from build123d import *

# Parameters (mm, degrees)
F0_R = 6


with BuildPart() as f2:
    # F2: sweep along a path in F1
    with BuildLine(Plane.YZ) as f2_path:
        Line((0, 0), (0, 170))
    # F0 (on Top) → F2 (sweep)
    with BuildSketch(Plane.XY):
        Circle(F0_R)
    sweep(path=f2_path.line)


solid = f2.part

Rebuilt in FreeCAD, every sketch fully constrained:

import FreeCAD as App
import Part
import Sketcher
Q = App.Units.Quantity

doc = App.newDocument("Part")
body = doc.addObject("PartDesign::Body", "Body")

# Sketch on XY plane
sketch1 = body.newObject("Sketcher::SketchObject", "Sketch")
sketch1.AttachmentSupport = (doc.getObject("XY_Plane"), [""])
sketch1.MapMode = "FlatFace"
sketch1.addGeometry(Part.Circle(App.Vector(0, 0, 0), App.Vector(0, 0, 1), 6), False)
sketch1.addConstraint(Sketcher.Constraint("Coincident", 0, 3, -1, 1))
sketch1.addConstraint(Sketcher.Constraint("Diameter", 0, Q("12 mm")))

# Sketch on XZ plane
sketch2 = body.newObject("Sketcher::SketchObject", "Sketch001")
sketch2.AttachmentSupport = (doc.getObject("XZ_Plane"), [""])
sketch2.MapMode = "FlatFace"
sketch2.addGeometry(Part.LineSegment(App.Vector(0, 0, 0), App.Vector(0, 170, 0)), False)
sketch2.addConstraint(Sketcher.Constraint("Vertical", 0))
sketch2.addConstraint(Sketcher.Constraint("Coincident", 0, 1, -1, 1))
sketch2.addConstraint(Sketcher.Constraint("DistanceY", 0, 1, 0, 2, Q("170 mm")))
doc.recompute()

additivepipe = body.newObject("PartDesign::AdditivePipe", "AdditivePipe")
additivepipe.Profile = sketch1
additivepipe.Spine = (sketch2, ["Edge1"])

doc.recompute()
